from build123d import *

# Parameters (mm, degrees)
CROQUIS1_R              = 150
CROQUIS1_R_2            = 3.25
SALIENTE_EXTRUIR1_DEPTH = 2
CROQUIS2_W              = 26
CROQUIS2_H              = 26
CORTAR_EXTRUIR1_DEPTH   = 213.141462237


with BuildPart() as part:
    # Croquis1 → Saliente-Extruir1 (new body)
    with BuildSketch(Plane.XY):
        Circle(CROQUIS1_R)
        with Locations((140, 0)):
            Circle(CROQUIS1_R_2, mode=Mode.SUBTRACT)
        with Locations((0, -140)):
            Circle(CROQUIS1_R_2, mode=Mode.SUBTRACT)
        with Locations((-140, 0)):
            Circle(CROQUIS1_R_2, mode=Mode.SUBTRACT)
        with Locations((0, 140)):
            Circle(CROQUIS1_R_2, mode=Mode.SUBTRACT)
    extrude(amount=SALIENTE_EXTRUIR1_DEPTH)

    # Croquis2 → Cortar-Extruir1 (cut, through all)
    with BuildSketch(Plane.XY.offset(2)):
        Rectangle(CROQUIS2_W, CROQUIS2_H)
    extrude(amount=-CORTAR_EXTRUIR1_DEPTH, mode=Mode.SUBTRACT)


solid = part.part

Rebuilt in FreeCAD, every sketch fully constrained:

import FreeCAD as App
import Part
import Sketcher

V = App.Vector
Q = App.Units.Quantity


def add_polygon(sketch, points):
    """Adds a closed chain of lines whose ends are joined by coincident constraints."""
    first, n = sketch.GeometryCount, len(points)
    for a, b in zip(points, points[1:] + points[:1]):
        sketch.addGeometry(Part.LineSegment(App.Vector(*a, 0), App.Vector(*b, 0)), False)
    for i in range(n):
        sketch.addConstraint(Sketcher.Constraint("Coincident", first + i, 2, first + (i + 1) % n, 1))

doc = App.newDocument("Part")
params = doc.addObject("Spreadsheet::Sheet", "Params")
for row, (alias, value) in enumerate([
    ("sketch1_diameter", "300 mm"),
    ("sketch1_diameter2", "6.5 mm"),
    ("pad1_length", "2 mm"),
    ("sketch2_width", "26 mm"),
], start=1):
    params.set(f"A{row}", alias)
    params.set(f"B{row}", "=" + value)
    params.setAlias(f"B{row}", alias)

body = doc.addObject("PartDesign::Body", "Body")

# Sketch on XY plane
sketch1 = body.newObject("Sketcher::SketchObject", "Sketch")
sketch1.AttachmentSupport = (doc.getObject("XY_Plane"), [""])
sketch1.MapMode = "FlatFace"
sketch1.addGeometry(Part.Circle(V(0, 0, 0), V(0, 0, 1), 150), False)
sketch1.addGeometry(Part.Circle(V(0, -140, 0), V(0, 0, 1), 3.2), False)
sketch1.addGeometry(Part.Circle(V(-140, 0, 0), V(0, 0, 1), 3.2), False)
sketch1.addGeometry(Part.Circle(V(140, 0, 0), V(0, 0, 1), 3.2), False)
sketch1.addGeometry(Part.Circle(V(0, 140, 0), V(0, 0, 1), 3.2), False)
sketch1.addConstraint(Sketcher.Constraint("Coincident", 0, 3, -1, 1))
sketch1.addConstraint(Sketcher.Constraint("Equal", 1, 2))
sketch1.addConstraint(Sketcher.Constraint("Equal", 2, 3))
sketch1.addConstraint(Sketcher.Constraint("Equal", 3, 4))
sketch1.addConstraint(Sketcher.Constraint("Symmetric", 2, 3, 3, 3, -1, 1))
sketch1.addConstraint(Sketcher.Constraint("Symmetric", 1, 3, 4, 3, -1, 1))
sketch1.addConstraint(Sketcher.Constraint("PointOnObject", 1, 3, -2))
sketch1.addConstraint(Sketcher.Constraint("PointOnObject", 2, 3, -1))
sketch1.addConstraint(Sketcher.Constraint("Diameter", 0, Q("300 mm")))
sketch1.addConstraint(Sketcher.Constraint("Diameter", 1, Q("6.5 mm")))
sketch1.addConstraint(Sketcher.Constraint("DistanceY", 1, 3, -1, 1, Q("140 mm")))
sketch1.addConstraint(Sketcher.Constraint("DistanceX", 2, 3, -1, 1, Q("140 mm")))
sketch1.setExpression("Constraints[8]", "Params.sketch1_diameter")
sketch1.setExpression("Constraints[9]", "Params.sketch1_diameter2")
pad1 = body.newObject("PartDesign::Pad", "Pad")
pad1.Profile = sketch1
pad1.setExpression("Length", "Params.pad1_length")

# Sketch on XY plane
sketch2 = body.newObject("Sketcher::SketchObject", "Sketch001")
sketch2.AttachmentSupport = (doc.getObject("XY_Plane"), [""])
sketch2.MapMode = "FlatFace"
sketch2.AttachmentOffset = App.Placement(V(0, 0, 2), App.Rotation())
add_polygon(sketch2, [(-13, 13), (-13, -13), (13, -13), (13, 13)])  # lines 0-3
sketch2.addConstraint(Sketcher.Constraint("Vertical", 0))
sketch2.addConstraint(Sketcher.Constraint("Horizontal", 1))
sketch2.addConstraint(Sketcher.Constraint("Vertical", 2))
sketch2.addConstraint(Sketcher.Constraint("Horizontal", 3))
sketch2.addConstraint(Sketcher.Constraint("Symmetric", 0, 2, 2, 2, -1, 1))
sketch2.addConstraint(Sketcher.Constraint("Equal", 3, 0))
sketch2.addConstraint(Sketcher.Constraint("DistanceX", 1, 1, 1, 2, Q("26 mm")))
sketch2.setExpression("Constraints[10]", "Params.sketch2_width")
pocket1 = body.newObject("PartDesign::Pocket", "Pocket")
pocket1.Profile = sketch2
pocket1.Type = "ThroughAll"

doc.recompute()
